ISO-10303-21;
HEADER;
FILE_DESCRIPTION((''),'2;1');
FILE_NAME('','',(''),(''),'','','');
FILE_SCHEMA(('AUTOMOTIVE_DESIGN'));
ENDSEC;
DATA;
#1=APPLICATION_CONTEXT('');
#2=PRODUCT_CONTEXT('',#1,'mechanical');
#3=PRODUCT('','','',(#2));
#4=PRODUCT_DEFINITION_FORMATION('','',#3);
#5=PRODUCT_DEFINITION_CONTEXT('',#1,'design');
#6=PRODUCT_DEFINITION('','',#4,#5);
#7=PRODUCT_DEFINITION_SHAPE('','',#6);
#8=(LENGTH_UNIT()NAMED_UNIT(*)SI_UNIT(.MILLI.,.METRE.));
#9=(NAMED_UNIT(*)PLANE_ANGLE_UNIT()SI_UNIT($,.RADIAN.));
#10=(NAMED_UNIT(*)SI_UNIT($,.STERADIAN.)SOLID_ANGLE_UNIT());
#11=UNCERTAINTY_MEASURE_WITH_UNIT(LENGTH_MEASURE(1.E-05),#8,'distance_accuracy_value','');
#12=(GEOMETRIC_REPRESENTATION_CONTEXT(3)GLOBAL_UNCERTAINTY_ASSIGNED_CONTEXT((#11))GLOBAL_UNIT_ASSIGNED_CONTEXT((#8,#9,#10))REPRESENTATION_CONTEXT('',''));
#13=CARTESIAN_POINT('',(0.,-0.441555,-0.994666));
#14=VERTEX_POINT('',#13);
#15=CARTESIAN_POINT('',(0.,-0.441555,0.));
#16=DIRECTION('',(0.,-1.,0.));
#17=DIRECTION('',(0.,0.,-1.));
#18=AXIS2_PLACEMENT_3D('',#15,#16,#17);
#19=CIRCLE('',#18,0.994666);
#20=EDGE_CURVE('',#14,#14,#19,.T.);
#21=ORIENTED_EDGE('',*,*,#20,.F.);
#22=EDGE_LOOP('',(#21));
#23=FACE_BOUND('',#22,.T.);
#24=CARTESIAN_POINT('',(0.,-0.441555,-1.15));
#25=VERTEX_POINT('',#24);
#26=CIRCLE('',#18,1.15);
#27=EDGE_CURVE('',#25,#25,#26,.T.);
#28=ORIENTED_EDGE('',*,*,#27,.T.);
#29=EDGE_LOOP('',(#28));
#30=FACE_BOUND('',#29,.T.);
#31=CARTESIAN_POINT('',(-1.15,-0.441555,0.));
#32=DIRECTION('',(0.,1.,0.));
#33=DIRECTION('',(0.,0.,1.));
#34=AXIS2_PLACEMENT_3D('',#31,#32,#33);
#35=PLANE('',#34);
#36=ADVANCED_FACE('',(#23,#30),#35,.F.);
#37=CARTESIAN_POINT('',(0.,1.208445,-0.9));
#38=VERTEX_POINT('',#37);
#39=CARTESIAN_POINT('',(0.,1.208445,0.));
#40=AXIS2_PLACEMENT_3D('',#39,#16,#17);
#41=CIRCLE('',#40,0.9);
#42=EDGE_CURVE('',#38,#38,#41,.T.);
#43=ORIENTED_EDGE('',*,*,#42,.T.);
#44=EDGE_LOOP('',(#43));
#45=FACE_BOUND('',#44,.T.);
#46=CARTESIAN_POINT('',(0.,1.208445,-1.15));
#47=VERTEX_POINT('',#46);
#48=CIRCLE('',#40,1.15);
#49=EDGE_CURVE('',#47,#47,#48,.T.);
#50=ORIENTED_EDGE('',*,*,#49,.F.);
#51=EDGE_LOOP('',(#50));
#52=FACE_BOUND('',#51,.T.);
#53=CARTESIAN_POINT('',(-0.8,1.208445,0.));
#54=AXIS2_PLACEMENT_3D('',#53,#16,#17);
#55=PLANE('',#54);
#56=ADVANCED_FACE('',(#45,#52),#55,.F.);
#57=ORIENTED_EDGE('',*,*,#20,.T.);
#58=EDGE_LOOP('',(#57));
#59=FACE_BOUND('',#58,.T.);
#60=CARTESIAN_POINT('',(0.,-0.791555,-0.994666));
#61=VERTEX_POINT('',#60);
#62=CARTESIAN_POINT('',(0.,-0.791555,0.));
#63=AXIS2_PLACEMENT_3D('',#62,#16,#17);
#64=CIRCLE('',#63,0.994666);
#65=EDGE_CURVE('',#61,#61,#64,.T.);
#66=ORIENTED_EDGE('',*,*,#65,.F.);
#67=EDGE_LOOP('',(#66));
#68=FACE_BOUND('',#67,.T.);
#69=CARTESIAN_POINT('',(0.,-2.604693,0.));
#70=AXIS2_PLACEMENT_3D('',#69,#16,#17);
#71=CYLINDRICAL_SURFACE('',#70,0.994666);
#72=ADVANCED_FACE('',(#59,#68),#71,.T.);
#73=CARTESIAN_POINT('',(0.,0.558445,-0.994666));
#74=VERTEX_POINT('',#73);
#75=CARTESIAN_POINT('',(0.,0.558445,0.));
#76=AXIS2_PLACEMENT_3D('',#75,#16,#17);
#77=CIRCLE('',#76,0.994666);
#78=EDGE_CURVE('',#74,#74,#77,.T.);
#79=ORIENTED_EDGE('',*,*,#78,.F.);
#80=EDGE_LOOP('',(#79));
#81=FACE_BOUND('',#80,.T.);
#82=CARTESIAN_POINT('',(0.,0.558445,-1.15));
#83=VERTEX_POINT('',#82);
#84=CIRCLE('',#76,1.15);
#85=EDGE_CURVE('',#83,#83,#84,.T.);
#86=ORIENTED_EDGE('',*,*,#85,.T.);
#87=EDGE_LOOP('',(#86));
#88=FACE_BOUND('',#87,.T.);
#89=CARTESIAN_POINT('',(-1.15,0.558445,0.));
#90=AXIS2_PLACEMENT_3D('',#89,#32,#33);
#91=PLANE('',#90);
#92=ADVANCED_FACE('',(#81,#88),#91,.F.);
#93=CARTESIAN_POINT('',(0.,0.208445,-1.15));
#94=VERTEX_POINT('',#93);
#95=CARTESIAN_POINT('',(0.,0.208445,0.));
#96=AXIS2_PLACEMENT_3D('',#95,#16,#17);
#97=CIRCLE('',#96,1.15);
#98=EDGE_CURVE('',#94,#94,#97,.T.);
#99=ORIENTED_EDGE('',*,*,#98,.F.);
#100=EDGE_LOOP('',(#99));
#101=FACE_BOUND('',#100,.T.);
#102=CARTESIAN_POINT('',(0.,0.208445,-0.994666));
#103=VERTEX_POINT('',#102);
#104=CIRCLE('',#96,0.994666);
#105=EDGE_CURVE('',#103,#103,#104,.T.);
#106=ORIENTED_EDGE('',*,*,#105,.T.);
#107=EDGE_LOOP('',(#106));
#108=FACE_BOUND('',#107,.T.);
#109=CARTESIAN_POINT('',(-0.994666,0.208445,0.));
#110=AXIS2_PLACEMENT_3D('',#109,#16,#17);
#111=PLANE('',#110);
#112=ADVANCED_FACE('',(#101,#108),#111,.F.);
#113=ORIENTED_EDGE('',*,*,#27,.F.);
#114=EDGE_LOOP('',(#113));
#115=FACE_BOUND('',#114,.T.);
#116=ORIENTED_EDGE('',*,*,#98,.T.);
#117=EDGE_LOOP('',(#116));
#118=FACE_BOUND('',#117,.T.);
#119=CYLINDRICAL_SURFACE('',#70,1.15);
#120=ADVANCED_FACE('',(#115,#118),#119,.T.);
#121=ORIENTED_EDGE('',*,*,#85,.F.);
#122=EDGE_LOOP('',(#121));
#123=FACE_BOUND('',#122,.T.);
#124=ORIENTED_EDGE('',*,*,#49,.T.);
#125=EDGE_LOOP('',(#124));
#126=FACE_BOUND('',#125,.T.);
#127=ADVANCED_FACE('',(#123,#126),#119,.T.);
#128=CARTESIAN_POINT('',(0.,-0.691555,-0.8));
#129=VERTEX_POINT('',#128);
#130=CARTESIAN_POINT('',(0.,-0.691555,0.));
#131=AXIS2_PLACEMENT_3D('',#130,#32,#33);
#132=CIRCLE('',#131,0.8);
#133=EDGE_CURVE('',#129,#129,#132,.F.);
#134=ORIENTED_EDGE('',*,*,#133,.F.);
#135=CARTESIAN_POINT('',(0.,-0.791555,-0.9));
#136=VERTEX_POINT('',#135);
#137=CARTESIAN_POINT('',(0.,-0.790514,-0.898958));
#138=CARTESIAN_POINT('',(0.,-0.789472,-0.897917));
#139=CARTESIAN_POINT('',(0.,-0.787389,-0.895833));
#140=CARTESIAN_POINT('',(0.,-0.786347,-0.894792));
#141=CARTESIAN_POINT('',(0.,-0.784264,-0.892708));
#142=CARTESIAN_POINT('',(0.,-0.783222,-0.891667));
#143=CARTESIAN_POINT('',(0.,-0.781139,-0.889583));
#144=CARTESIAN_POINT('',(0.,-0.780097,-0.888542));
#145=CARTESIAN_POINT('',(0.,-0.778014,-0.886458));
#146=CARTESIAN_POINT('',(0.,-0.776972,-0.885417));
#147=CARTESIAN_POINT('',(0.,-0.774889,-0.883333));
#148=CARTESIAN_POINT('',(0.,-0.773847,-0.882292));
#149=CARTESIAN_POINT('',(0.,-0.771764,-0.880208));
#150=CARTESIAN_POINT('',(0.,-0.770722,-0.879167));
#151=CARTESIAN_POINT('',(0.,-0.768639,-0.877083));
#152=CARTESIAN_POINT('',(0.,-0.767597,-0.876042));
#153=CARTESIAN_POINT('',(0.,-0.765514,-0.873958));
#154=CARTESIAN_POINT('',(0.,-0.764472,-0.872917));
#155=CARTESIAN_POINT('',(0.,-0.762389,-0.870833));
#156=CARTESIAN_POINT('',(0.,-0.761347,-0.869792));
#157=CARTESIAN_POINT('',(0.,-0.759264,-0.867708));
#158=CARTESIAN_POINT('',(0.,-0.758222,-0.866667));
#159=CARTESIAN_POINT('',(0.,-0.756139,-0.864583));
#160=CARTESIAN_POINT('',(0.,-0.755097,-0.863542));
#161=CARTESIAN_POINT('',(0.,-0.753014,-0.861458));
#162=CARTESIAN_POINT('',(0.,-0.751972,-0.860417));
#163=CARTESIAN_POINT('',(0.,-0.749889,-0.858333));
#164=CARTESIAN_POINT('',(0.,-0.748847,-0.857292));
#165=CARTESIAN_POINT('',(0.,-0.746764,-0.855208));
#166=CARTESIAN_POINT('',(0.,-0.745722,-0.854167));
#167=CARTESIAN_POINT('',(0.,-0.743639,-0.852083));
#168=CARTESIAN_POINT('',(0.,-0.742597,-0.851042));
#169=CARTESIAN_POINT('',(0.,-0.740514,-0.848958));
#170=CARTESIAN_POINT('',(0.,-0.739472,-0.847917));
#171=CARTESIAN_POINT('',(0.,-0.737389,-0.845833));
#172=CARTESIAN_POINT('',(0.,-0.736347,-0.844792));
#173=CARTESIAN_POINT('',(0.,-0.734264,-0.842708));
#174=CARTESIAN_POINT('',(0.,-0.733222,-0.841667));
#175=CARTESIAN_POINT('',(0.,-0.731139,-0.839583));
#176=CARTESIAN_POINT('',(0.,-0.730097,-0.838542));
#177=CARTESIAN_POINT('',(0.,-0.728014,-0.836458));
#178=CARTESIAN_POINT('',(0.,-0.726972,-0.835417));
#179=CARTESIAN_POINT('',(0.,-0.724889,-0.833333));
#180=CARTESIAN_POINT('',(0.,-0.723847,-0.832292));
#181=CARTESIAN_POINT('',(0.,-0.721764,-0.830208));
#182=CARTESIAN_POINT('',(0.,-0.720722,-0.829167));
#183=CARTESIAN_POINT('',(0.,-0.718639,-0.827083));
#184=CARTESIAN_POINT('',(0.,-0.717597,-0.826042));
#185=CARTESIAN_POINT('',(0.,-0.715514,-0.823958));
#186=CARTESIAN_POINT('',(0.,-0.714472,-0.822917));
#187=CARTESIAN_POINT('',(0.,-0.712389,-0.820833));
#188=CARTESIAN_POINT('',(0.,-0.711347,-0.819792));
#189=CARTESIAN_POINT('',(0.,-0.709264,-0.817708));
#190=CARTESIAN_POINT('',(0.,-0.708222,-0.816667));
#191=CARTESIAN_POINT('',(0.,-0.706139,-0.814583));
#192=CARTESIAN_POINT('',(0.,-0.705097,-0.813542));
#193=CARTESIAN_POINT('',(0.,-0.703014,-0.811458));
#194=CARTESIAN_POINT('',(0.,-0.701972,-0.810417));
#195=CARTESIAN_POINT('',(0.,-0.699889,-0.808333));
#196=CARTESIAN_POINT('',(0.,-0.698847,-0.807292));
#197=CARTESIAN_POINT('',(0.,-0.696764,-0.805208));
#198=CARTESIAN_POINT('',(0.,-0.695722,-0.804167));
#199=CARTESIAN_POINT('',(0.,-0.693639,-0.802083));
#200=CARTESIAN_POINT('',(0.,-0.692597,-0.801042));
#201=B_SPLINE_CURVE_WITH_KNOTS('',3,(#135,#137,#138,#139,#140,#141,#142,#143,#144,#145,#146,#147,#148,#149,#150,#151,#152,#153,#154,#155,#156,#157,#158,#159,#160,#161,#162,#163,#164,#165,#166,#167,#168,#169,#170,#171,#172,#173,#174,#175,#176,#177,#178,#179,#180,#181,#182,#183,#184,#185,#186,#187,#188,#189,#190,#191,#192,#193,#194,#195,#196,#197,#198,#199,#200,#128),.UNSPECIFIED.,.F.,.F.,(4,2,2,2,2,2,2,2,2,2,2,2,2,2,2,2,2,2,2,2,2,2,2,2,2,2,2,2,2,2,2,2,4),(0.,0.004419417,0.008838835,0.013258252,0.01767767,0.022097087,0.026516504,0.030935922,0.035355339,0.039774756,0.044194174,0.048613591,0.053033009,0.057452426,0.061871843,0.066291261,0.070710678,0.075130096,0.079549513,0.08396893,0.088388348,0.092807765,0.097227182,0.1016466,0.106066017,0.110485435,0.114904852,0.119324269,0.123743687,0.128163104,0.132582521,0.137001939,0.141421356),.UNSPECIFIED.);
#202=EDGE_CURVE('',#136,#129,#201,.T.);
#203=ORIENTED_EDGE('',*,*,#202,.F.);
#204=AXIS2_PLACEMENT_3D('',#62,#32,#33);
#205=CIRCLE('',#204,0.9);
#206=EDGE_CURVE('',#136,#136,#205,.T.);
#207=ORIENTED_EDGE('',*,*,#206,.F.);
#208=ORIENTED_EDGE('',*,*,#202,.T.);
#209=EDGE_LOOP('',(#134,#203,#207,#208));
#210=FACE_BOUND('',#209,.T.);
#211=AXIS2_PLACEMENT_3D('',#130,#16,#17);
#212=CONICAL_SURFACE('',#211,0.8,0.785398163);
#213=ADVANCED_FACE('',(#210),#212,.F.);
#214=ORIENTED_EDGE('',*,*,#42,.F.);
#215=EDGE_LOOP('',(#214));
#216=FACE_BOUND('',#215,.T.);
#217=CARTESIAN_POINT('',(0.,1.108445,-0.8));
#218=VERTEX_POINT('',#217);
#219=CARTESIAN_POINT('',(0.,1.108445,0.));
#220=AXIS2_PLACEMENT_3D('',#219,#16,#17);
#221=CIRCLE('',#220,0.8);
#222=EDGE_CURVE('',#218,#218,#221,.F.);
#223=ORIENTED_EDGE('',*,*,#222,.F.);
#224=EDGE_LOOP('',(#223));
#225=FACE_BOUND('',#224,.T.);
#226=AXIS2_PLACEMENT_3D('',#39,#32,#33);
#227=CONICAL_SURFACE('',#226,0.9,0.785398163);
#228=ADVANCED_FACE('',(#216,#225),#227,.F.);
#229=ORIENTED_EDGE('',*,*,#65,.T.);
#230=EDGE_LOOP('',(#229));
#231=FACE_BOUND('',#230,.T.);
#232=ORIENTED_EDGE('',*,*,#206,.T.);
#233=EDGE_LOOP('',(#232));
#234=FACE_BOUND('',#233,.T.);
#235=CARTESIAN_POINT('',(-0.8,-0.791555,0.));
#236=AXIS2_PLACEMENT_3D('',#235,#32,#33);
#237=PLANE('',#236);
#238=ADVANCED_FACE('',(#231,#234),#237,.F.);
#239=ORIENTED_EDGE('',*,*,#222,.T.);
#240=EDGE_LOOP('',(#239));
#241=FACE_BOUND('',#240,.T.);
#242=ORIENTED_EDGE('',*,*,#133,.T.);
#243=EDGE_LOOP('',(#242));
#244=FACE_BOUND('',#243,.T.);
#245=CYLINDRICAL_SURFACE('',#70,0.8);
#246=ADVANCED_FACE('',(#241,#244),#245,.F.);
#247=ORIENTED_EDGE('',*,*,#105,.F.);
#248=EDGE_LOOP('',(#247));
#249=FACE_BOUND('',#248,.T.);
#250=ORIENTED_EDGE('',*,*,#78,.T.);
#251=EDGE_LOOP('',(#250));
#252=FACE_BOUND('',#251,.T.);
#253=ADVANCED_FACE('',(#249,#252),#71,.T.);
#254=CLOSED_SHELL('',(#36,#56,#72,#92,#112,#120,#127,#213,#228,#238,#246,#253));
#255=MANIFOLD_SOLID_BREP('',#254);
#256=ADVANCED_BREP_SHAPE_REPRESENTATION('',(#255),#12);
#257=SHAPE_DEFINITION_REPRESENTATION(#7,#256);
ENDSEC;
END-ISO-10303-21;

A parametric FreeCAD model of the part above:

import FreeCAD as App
import Part
import Sketcher


def edges_at(feature, points):
    """Names of the edges that pass closest to the given points."""
    edges = feature.Shape.Edges
    near = lambda p: min(range(len(edges)), key=lambda i: edges[i].distToShape(Part.Vertex(*p))[0])
    return sorted({f"Edge{near(p) + 1}" for p in points})

doc = App.newDocument("Part")
params = doc.addObject("Spreadsheet::Sheet", "Params")
for row, (alias, value) in enumerate([
    ("sketch1_height", "2 mm"),
    ("sketch1_width", "0.35 mm"),
    ("revolution_angle", "360 deg"),
    ("chamfer_size", "0.1 mm"),
], start=1):
    params.set(f"A{row}", alias)
    params.set(f"B{row}", "=" + value)
    params.setAlias(f"B{row}", alias)

body = doc.addObject("PartDesign::Body", "Body")

sketch1 = body.newObject("Sketcher::SketchObject", "Sketch")
sketch1.AttachmentSupport = (doc.getObject("XY_Plane"), [""])
sketch1.MapMode = "FlatFace"
sketch1.addGeometry([
    Part.LineSegment(App.Vector(-0.8, 1.208445, 0), App.Vector(-1.15, 1.208445, 0)),
    Part.LineSegment(App.Vector(-1.15, 1.208445, 0), App.Vector(-1.15, 0.558445, 0)),
    Part.LineSegment(App.Vector(-1.15, 0.558445, 0), App.Vector(-0.994666, 0.558445, 0)),
    Part.LineSegment(App.Vector(-0.994666, 0.558445, 0), App.Vector(-0.994666, 0.208445, 0)),
    Part.LineSegment(App.Vector(-0.994666, 0.208445, 0), App.Vector(-1.15, 0.208445, 0)),
    Part.LineSegment(App.Vector(-1.15, 0.208445, 0), App.Vector(-1.15, -0.441555, 0)),
    Part.LineSegment(App.Vector(-1.15, -0.441555, 0), App.Vector(-0.994666, -0.441555, 0)),
    Part.LineSegment(App.Vector(-0.994666, -0.441555, 0), App.Vector(-0.994666, -0.791555, 0)),
    Part.LineSegment(App.Vector(-0.994666, -0.791555, 0), App.Vector(-0.8, -0.791555, 0)),
    Part.LineSegment(App.Vector(-0.8, -0.791555, 0), App.Vector(-0.8, 1.208445, 0)),
], False)
sketch1.addConstraint([
    Sketcher.Constraint("Coincident", 0, 2, 1, 1),
    Sketcher.Constraint("Coincident", 1, 2, 2, 1),
    Sketcher.Constraint("Coincident", 2, 2, 3, 1),
    Sketcher.Constraint("Coincident", 3, 2, 4, 1),
    Sketcher.Constraint("Coincident", 4, 2, 5, 1),
    Sketcher.Constraint("Coincident", 5, 2, 6, 1),
    Sketcher.Constraint("Coincident", 6, 2, 7, 1),
    Sketcher.Constraint("Coincident", 7, 2, 8, 1),
    Sketcher.Constraint("Coincident", 8, 2, 9, 1),
    Sketcher.Constraint("Coincident", 9, 2, 0, 1),
    Sketcher.Constraint("Horizontal", 0),
    Sketcher.Constraint("Vertical", 1),
    Sketcher.Constraint("Horizontal", 2),
    Sketcher.Constraint("Vertical", 3),
    Sketcher.Constraint("Horizontal", 4),
    Sketcher.Constraint("Vertical", 5),
    Sketcher.Constraint("Horizontal", 6),
    Sketcher.Constraint("Vertical", 7),
    Sketcher.Constraint("Horizontal", 8),
    Sketcher.Constraint("Vertical", 9),
    Sketcher.Constraint("Vertical", 1, 2, 4, 2),
    Sketcher.Constraint("Vertical", 3, 2, 6, 2),
    Sketcher.Constraint("Equal", 0, 3),
    Sketcher.Constraint("Equal", 1, 5),
    Sketcher.Constraint("Equal", 3, 7),
    Sketcher.Constraint("DistanceY", 9, 1, 9, 2, 2.0),
    Sketcher.Constraint("DistanceX", 0, 2, 0, 1, 0.35),
    Sketcher.Constraint("DistanceX", 8, 2, -1, 1, 0.8),
    Sketcher.Constraint("DistanceX", 2, 1, 2, 2, 0.155334),
    Sketcher.Constraint("DistanceY", -1, 1, 0, 2, 1.208445),
])
sketch1.setExpression("Constraints[25]", "Params.sketch1_height")
sketch1.setExpression("Constraints[26]", "Params.sketch1_width")
revolution = body.newObject("PartDesign::Revolution", "Revolution")
revolution.Profile = sketch1
revolution.ReferenceAxis = (sketch1, ["V_Axis"])
revolution.setExpression("Angle", "Params.revolution_angle")
doc.recompute()

chamfer = body.newObject("PartDesign::Chamfer", "Chamfer")
chamfer.Base = (revolution, edges_at(revolution, [(0, 1.208, 0.8), (0, -0.792, 0.8)]))
chamfer.setExpression("Size", "Params.chamfer_size")

doc.recompute()
